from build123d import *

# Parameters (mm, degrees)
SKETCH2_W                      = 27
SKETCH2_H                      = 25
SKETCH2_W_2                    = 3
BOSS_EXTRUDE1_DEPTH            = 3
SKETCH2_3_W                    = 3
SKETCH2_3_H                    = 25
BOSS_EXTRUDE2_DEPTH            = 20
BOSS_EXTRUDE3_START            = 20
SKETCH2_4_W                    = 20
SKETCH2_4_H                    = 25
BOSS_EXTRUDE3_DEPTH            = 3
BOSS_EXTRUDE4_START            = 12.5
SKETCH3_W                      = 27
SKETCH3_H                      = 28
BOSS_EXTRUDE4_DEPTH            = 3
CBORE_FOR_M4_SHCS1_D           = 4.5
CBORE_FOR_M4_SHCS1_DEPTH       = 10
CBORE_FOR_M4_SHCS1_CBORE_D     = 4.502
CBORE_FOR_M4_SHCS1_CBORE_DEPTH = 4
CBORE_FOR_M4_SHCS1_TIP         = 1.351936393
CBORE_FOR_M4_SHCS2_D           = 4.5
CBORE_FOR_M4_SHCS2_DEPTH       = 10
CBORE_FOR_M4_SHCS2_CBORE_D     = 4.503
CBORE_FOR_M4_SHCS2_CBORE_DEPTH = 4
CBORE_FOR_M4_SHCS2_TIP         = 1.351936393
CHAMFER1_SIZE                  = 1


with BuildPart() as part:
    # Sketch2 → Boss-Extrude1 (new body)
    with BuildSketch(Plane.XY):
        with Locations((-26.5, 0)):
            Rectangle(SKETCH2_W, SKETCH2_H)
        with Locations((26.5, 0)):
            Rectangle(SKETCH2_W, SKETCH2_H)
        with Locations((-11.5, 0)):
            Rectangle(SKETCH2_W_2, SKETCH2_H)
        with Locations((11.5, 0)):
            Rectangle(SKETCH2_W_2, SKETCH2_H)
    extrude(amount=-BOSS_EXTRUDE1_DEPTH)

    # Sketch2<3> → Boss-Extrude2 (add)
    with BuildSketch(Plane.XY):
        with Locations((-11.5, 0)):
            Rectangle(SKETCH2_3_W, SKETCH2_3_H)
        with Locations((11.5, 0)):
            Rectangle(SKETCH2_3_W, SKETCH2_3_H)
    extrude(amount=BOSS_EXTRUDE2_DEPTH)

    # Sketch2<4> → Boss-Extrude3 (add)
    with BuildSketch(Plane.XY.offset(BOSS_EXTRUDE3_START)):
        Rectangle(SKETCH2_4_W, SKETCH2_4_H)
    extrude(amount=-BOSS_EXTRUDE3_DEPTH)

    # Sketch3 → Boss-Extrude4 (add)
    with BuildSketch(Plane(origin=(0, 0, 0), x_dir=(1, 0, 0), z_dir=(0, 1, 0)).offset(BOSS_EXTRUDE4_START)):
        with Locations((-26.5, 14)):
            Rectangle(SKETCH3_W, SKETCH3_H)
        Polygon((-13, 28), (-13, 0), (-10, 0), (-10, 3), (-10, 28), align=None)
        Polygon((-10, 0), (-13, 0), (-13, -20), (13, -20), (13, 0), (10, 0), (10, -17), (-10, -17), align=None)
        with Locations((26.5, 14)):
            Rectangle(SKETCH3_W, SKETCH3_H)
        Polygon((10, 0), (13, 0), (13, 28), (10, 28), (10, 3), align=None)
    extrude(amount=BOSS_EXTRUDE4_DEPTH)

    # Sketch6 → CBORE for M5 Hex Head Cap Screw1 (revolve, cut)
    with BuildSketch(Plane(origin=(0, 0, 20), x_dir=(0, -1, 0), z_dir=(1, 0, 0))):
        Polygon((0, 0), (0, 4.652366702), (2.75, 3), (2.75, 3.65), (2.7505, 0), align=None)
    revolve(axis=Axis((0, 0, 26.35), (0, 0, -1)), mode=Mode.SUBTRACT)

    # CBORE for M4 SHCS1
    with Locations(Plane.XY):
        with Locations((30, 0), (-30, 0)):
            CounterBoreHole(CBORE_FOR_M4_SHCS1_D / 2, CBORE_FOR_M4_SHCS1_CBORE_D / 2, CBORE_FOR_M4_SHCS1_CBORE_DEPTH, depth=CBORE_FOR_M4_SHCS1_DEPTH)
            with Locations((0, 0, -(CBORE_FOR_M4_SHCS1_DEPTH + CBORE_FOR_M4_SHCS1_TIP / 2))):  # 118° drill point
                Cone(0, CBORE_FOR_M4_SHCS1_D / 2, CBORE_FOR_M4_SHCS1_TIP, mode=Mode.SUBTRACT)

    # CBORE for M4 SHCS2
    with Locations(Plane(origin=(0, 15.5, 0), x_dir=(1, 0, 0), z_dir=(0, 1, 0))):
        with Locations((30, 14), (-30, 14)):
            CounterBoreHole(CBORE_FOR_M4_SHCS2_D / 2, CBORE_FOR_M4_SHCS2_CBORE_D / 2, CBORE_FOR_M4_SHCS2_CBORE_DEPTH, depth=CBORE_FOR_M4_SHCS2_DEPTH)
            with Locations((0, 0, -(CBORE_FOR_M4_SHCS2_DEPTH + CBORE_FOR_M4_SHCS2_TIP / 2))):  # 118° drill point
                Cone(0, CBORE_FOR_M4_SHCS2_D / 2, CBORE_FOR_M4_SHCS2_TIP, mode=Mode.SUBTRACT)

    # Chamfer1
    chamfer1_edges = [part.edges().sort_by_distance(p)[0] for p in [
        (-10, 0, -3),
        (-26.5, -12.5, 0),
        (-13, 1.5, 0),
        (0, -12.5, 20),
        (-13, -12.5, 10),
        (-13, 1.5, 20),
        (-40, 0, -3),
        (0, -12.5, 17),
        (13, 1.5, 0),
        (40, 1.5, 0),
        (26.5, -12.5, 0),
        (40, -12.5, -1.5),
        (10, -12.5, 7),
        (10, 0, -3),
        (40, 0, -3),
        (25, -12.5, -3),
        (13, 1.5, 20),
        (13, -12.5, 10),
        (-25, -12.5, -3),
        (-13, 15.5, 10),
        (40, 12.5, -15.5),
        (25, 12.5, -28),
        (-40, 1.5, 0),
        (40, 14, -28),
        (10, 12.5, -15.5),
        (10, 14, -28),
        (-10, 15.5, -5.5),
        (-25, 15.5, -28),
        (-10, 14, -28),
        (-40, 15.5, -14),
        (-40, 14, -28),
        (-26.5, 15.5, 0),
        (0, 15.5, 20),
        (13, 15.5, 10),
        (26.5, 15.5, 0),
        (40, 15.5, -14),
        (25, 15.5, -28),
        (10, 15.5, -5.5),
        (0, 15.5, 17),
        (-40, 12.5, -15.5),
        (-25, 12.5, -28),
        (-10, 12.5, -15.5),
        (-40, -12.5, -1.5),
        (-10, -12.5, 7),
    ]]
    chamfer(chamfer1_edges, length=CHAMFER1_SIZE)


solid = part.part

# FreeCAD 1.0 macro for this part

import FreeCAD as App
import Part
import Sketcher
Q = App.Units.Quantity


def edges_at(feature, points):
    """Names of the edges that pass closest to the given points."""
    edges = feature.Shape.Edges
    near = lambda p: min(range(len(edges)), key=lambda i: edges[i].distToShape(Part.Vertex(*p))[0])
    return sorted({f"Edge{near(p) + 1}" for p in points})


def add_polygon(sketch, points):
    """Adds a closed chain of lines whose ends are joined by coincident constraints."""
    first, n = sketch.GeometryCount, len(points)
    for a, b in zip(points, points[1:] + points[:1]):
        sketch.addGeometry(Part.LineSegment(App.Vector(*a, 0), App.Vector(*b, 0)), False)
    for i in range(n):
        sketch.addConstraint(Sketcher.Constraint("Coincident", first + i, 2, first + (i + 1) % n, 1))

doc = App.newDocument("Part")
body = doc.addObject("PartDesign::Body", "Body")
body.AllowCompound = True

# Sketch on XY plane
sketch1 = body.newObject("Sketcher::SketchObject", "Sketch")
sketch1.AttachmentSupport = (doc.getObject("XY_Plane"), [""])
sketch1.MapMode = "FlatFace"
add_polygon(sketch1, [(-40, 12.5), (-40, -12.5), (-10, -12.5), (-10, 12.5)])  # lines 0-3
add_polygon(sketch1, [(40, -12.5), (40, 12.5), (10, 12.5), (10, -12.5)])  # lines 4-7
sketch1.addConstraint([
    Sketcher.Constraint("Vertical", 0),
    Sketcher.Constraint("Horizontal", 1),
    Sketcher.Constraint("Vertical", 2),
    Sketcher.Constraint("Horizontal", 3),
    Sketcher.Constraint("Vertical", 4),
    Sketcher.Constraint("Horizontal", 5),
    Sketcher.Constraint("Vertical", 6),
    Sketcher.Constraint("Horizontal", 7),
    Sketcher.Constraint("Symmetric", 0, 2, 4, 2, -1, 1),
    Sketcher.Constraint("Symmetric", 2, 2, 6, 2, -1, 1),
    Sketcher.Constraint("Horizontal", 3, 2, 4, 2),
    Sketcher.Constraint("DistanceX", 1, 1, 1, 2, Q("30 mm")),
    Sketcher.Constraint("DistanceY", 0, 2, 0, 1, Q("25 mm")),
    Sketcher.Constraint("DistanceX", 0, 2, -1, 1, Q("40 mm")),
])
pad1 = body.newObject("PartDesign::Pad", "Pad")
pad1.Profile = sketch1
pad1.Length = 3
pad1.Reversed = True

# Sketch on XY plane
sketch2 = body.newObject("Sketcher::SketchObject", "Sketch001")
sketch2.AttachmentSupport = (doc.getObject("XY_Plane"), [""])
sketch2.MapMode = "FlatFace"
add_polygon(sketch2, [(-13, 12.5), (-13, -12.5), (-10, -12.5), (-10, 12.5)])  # lines 0-3
add_polygon(sketch2, [(10, 12.5), (10, -12.5), (13, -12.5), (13, 12.5)])  # lines 4-7
sketch2.addConstraint([
    Sketcher.Constraint("Vertical", 0),
    Sketcher.Constraint("Horizontal", 1),
    Sketcher.Constraint("Vertical", 2),
    Sketcher.Constraint("Horizontal", 3),
    Sketcher.Constraint("Vertical", 4),
    Sketcher.Constraint("Horizontal", 5),
    Sketcher.Constraint("Vertical", 6),
    Sketcher.Constraint("Horizontal", 7),
    Sketcher.Constraint("Symmetric", 2, 2, 4, 2, -1, 1),
    Sketcher.Constraint("Symmetric", 0, 2, 6, 2, -1, 1),
    Sketcher.Constraint("Horizontal", 1, 2, 4, 2),
    Sketcher.Constraint("DistanceX", 1, 1, 1, 2, Q("3 mm")),
    Sketcher.Constraint("DistanceY", 0, 2, 0, 1, Q("25 mm")),
    Sketcher.Constraint("DistanceX", 0, 2, -1, 1, Q("13 mm")),
])
pad2 = body.newObject("PartDesign::Pad", "Pad001")
pad2.Profile = sketch2
pad2.Length = 20

# Sketch on XY plane
sketch3 = body.newObject("Sketcher::SketchObject", "Sketch002")
sketch3.AttachmentSupport = (doc.getObject("XY_Plane"), [""])
sketch3.MapMode = "FlatFace"
sketch3.AttachmentOffset = App.Placement(App.Vector(0, 0, 20), App.Rotation())
add_polygon(sketch3, [(-10, 12.5), (-10, -12.5), (10, -12.5), (10, 12.5)])  # lines 0-3
sketch3.addConstraint([
    Sketcher.Constraint("Vertical", 0),
    Sketcher.Constraint("Horizontal", 1),
    Sketcher.Constraint("Vertical", 2),
    Sketcher.Constraint("Horizontal", 3),
    Sketcher.Constraint("Symmetric", 0, 2, 2, 2, -1, 1),
    Sketcher.Constraint("DistanceX", 1, 1, 1, 2, Q("20 mm")),
    Sketcher.Constraint("DistanceY", 0, 2, 0, 1, Q("25 mm")),
])
pad3 = body.newObject("PartDesign::Pad", "Pad002")
pad3.Profile = sketch3
pad3.Length = 3
pad3.Reversed = True

# Sketch on XZ plane
sketch4 = body.newObject("Sketcher::SketchObject", "Sketch003")
sketch4.AttachmentSupport = (doc.getObject("XZ_Plane"), [""])
sketch4.MapMode = "FlatFace"
sketch4.AttachmentOffset = App.Placement(App.Vector(0, 0, -12.5), App.Rotation())
add_polygon(sketch4, [(-40, -28), (-40, 0), (-13, 0), (-13, 20), (13, 20), (13, 0), (40, 0), (40, -28), (10, -28), (10, 17), (-10, 17), (-10, -28)])  # lines 0-11
sketch4.addConstraint([
    Sketcher.Constraint("Vertical", 0),
    Sketcher.Constraint("Horizontal", 1),
    Sketcher.Constraint("Vertical", 2),
    Sketcher.Constraint("Horizontal", 3),
    Sketcher.Constraint("Vertical", 4),
    Sketcher.Constraint("Horizontal", 5),
    Sketcher.Constraint("Vertical", 6),
    Sketcher.Constraint("Horizontal", 7),
    Sketcher.Constraint("Vertical", 8),
    Sketcher.Constraint("Horizontal", 9),
    Sketcher.Constraint("Vertical", 10),
    Sketcher.Constraint("Horizontal", 11),
    Sketcher.Constraint("Symmetric", 1, 2, 4, 2, -1, 1),
    Sketcher.Constraint("Symmetric", 0, 2, 5, 2, -2),
    Sketcher.Constraint("Symmetric", 7, 2, 10, 2, -2),
    Sketcher.Constraint("Equal", 9, 2),
    Sketcher.Constraint("DistanceX", 1, 1, 1, 2, Q("27 mm")),
    Sketcher.Constraint("DistanceX", 3, 1, 3, 2, Q("26 mm")),
    Sketcher.Constraint("DistanceX", 7, 2, 7, 1, Q("30 mm")),
    Sketcher.Constraint("DistanceY", 0, 1, 0, 2, Q("28 mm")),
    Sketcher.Constraint("DistanceY", 8, 1, 8, 2, Q("45 mm")),
])
pad4 = body.newObject("PartDesign::Pad", "Pad003")
pad4.Profile = sketch4
pad4.Length = 3
pad4.Reversed = True

# Sketch on YZ plane
sketch5 = body.newObject("Sketcher::SketchObject", "Sketch004")
sketch5.AttachmentSupport = (doc.getObject("YZ_Plane"), [""])
sketch5.MapMode = "FlatFace"
add_polygon(sketch5, [(0, 15.347633), (0, 20), (-2.7505, 20), (-2.75, 16.35), (-2.75, 17)])  # lines 0-4
sketch5.addConstraint([
    Sketcher.Constraint("Vertical", 0),
    Sketcher.Constraint("Horizontal", 1),
    Sketcher.Constraint("Vertical", 3),
    Sketcher.Constraint("PointOnObject", 0, 2, -2),
    Sketcher.Constraint("Angle", 4, Q("-31 deg")),
    Sketcher.Constraint("DistanceY", -1, 1, 0, 2, Q("20 mm")),
    Sketcher.Constraint("DistanceY", -1, 1, 3, 2, Q("17 mm")),
    Sketcher.Constraint("DistanceY", 3, 1, 3, 2, Q("0.65 mm")),
    Sketcher.Constraint("DistanceX", 2, 2, -1, 1, Q("2.75 mm")),
    Sketcher.Constraint("DistanceX", 1, 2, 1, 1, Q("2.7505 mm")),
])
groove = body.newObject("PartDesign::Groove", "Groove")
groove.Profile = sketch5
groove.ReferenceAxis = (sketch5, ["V_Axis"])
groove.Angle = 360

# Sketch on XY plane
sketch6 = body.newObject("Sketcher::SketchObject", "Sketch005")
sketch6.AttachmentSupport = (doc.getObject("XY_Plane"), [""])
sketch6.MapMode = "FlatFace"
sketch6.addGeometry([
    Part.Circle(App.Vector(30, 0, 0), App.Vector(0, 0, 1), 2.25),
    Part.Circle(App.Vector(-30, 0, 0), App.Vector(0, 0, 1), 2.25),
], False)
sketch6.addConstraint([
    Sketcher.Constraint("Equal", 0, 1),
    Sketcher.Constraint("Symmetric", 0, 3, 1, 3, -1, 1),
    Sketcher.Constraint("PointOnObject", 0, 3, -1),
    Sketcher.Constraint("Diameter", 0, Q("4.5 mm")),
    Sketcher.Constraint("DistanceX", -1, 1, 0, 3, Q("30 mm")),
])
doc.recompute()
hole = body.newObject("PartDesign::Hole", "Hole")
hole.Profile = sketch6
hole.ThreadType = "None"
hole.Diameter = 4.5
hole.DepthType = "Dimension"
hole.Depth = 10
hole.DrillPoint = "Angled"
hole.DrillPointAngle = 118
hole.HoleCutType = "Counterbore"
hole.HoleCutDiameter = 4.502
hole.HoleCutDepth = 4

# Sketch on XZ plane
sketch7 = body.newObject("Sketcher::SketchObject", "Sketch006")
sketch7.AttachmentSupport = (doc.getObject("XZ_Plane"), [""])
sketch7.MapMode = "FlatFace"
sketch7.AttachmentOffset = App.Placement(App.Vector(0, 0, -15.5), App.Rotation())
sketch7.addGeometry([
    Part.Circle(App.Vector(30, -14, 0), App.Vector(0, 0, 1), 2.25),
    Part.Circle(App.Vector(-30, -14, 0), App.Vector(0, 0, 1), 2.25),
], False)
sketch7.addConstraint([
    Sketcher.Constraint("Equal", 0, 1),
    Sketcher.Constraint("Symmetric", 0, 3, 1, 3, -2),
    Sketcher.Constraint("Diameter", 0, Q("4.5 mm")),
    Sketcher.Constraint("DistanceX", -1, 1, 0, 3, Q("30 mm")),
    Sketcher.Constraint("DistanceY", 0, 3, -1, 1, Q("14 mm")),
])
doc.recompute()
hole2 = body.newObject("PartDesign::Hole", "Hole001")
hole2.Profile = sketch7
hole2.ThreadType = "None"
hole2.Diameter = 4.5
hole2.DepthType = "Dimension"
hole2.Depth = 10
hole2.DrillPoint = "Angled"
hole2.DrillPointAngle = 118
hole2.HoleCutType = "Counterbore"
hole2.HoleCutDiameter = 4.503
hole2.HoleCutDepth = 4
hole2.Reversed = True
doc.recompute()

chamfer = body.newObject("PartDesign::Chamfer", "Chamfer")
chamfer.Base = (hole2, edges_at(hole2, [
    (-10, 0, -3),
    (-26.5, -12.5, 0),
    (-13, 1.5, 0),
    (0, -12.5, 20),
    (-13, -12.5, 10),
    (-13, 1.5, 20),
    (-40, 0, -3),
    (0, -12.5, 17),
    (13, 1.5, 0),
    (40, 1.5, 0),
    (26.5, -12.5, 0),
    (40, -12.5, -1.5),
    (10, -12.5, 7),
    (10, 0, -3),
    (40, 0, -3),
    (25, -12.5, -3),
    (13, 1.5, 20),
    (13, -12.5, 10),
    (-25, -12.5, -3),
    (-13, 15.5, 10),
    (40, 12.5, -15.5),
    (25, 12.5, -28),
    (-40, 1.5, 0),
    (40, 14, -28),
    (10, 12.5, -15.5),
    (10, 14, -28),
    (-10, 15.5, -5.5),
    (-25, 15.5, -28),
    (-10, 14, -28),
    (-40, 15.5, -14),
    (-40, 14, -28),
    (-26.5, 15.5, 0),
    (0, 15.5, 20),
    (13, 15.5, 10),
    (26.5, 15.5, 0),
    (40, 15.5, -14),
    (25, 15.5, -28),
    (10, 15.5, -5.5),
    (0, 15.5, 17),
    (-40, 12.5, -15.5),
    (-25, 12.5, -28),
    (-10, 12.5, -15.5),
    (-40, -12.5, -1.5),
    (-10, -12.5, 7),
]))
chamfer.Size = 1

doc.recompute()
